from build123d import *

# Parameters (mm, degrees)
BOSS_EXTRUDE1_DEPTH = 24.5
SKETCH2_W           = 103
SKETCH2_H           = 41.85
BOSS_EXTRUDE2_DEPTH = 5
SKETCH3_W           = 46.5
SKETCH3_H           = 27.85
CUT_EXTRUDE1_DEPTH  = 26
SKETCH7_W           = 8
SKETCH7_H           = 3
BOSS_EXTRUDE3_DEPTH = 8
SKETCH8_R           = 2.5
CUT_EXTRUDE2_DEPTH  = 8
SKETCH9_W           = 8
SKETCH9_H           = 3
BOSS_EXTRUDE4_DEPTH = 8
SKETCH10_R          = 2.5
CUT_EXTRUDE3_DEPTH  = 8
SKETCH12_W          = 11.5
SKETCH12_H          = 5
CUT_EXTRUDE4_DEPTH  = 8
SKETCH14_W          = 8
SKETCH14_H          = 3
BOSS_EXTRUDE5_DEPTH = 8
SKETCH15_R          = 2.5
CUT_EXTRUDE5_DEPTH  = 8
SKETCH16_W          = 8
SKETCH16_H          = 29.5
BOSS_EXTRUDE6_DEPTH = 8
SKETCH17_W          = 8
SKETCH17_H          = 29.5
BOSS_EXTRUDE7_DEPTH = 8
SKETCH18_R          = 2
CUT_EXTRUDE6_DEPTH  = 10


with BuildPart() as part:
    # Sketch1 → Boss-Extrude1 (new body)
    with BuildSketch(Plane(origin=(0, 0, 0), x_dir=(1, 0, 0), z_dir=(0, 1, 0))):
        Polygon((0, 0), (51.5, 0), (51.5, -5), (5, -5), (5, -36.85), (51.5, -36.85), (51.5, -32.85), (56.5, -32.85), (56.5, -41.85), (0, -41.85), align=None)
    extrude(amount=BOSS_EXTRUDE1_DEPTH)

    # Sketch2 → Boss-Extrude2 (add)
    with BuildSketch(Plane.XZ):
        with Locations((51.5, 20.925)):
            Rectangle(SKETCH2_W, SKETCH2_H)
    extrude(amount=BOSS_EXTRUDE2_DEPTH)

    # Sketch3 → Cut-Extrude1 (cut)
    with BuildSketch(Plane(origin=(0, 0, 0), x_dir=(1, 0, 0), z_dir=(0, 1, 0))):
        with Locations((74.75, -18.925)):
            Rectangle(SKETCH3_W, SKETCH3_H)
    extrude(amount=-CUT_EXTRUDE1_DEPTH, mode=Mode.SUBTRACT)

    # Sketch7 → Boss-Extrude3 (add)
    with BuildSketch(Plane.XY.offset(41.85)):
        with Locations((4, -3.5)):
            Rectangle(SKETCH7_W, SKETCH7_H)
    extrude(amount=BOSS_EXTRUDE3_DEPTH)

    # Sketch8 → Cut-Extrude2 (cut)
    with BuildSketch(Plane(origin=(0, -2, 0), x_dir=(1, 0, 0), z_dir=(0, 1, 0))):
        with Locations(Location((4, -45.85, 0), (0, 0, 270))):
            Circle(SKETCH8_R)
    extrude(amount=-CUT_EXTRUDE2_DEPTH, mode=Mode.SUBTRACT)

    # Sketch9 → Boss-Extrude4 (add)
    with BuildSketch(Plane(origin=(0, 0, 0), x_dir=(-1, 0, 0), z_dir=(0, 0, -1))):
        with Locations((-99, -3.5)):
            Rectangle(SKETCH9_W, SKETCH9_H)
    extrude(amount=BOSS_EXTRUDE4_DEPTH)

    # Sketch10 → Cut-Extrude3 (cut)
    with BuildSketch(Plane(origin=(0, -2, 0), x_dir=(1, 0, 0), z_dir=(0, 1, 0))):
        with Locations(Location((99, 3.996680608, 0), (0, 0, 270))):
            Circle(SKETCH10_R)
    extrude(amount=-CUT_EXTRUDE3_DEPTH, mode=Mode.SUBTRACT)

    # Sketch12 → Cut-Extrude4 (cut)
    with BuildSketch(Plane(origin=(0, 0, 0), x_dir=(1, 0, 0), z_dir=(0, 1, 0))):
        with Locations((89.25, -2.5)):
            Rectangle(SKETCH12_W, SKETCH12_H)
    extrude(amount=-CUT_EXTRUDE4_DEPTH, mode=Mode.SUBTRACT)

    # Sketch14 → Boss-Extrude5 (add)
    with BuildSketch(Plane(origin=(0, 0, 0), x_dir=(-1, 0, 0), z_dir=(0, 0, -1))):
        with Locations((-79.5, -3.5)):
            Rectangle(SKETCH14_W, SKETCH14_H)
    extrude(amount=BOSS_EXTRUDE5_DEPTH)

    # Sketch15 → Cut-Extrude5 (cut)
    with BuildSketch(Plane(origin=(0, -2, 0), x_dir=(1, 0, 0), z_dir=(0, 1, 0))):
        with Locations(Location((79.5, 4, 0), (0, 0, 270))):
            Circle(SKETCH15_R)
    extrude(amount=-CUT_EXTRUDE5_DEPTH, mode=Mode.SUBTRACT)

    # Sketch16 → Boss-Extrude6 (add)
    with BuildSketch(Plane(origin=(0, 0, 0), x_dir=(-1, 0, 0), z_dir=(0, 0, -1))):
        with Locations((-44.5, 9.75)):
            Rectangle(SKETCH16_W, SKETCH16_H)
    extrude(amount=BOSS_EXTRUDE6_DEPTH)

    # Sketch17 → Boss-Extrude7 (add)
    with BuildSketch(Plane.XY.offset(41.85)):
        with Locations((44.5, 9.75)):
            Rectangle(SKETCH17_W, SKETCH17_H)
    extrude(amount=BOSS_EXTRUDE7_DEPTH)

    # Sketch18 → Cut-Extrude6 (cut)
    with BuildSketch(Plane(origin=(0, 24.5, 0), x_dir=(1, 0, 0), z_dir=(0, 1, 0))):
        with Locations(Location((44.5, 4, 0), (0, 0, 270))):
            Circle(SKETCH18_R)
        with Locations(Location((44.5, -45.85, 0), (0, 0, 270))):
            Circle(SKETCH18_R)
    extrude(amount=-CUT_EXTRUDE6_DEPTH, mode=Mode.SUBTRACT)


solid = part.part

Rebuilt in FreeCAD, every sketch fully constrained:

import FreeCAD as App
import Part
import Sketcher

V = App.Vector

doc = App.newDocument("Part")
body = doc.addObject("PartDesign::Body", "Body")

sketch1 = doc.addObject("Sketcher::SketchObject", "Sketch")
body.addObject(sketch1)
sketch1.AttachmentSupport = (doc.XZ_Plane, [""])
sketch1.MapMode = "FlatFace"
sketch1.addGeometry(Part.LineSegment(V(51.5, 0, 0), V(0, 0, 0)), False)
sketch1.addGeometry(Part.LineSegment(V(0, 0, 0), V(0, 41.85, 0)), False)
sketch1.addGeometry(Part.LineSegment(V(0, 41.85, 0), V(56.5, 41.85, 0)), False)
sketch1.addGeometry(Part.LineSegment(V(56.5, 41.85, 0), V(56.5, 32.85, 0)), False)
sketch1.addGeometry(Part.LineSegment(V(56.5, 32.85, 0), V(51.5, 32.85, 0)), False)
sketch1.addGeometry(Part.LineSegment(V(51.5, 32.85, 0), V(51.5, 36.85, 0)), False)
sketch1.addGeometry(Part.LineSegment(V(51.5, 36.85, 0), V(5, 36.85, 0)), False)
sketch1.addGeometry(Part.LineSegment(V(5, 36.85, 0), V(5, 5, 0)), False)
sketch1.addGeometry(Part.LineSegment(V(5, 5, 0), V(51.5, 5, 0)), False)
sketch1.addGeometry(Part.LineSegment(V(51.5, 5, 0), V(51.5, 0, 0)), False)
sketch1.addConstraint(Sketcher.Constraint("Coincident", 0, 2, 1, 1))
sketch1.addConstraint(Sketcher.Constraint("Coincident", 1, 2, 2, 1))
sketch1.addConstraint(Sketcher.Constraint("Coincident", 2, 2, 3, 1))
sketch1.addConstraint(Sketcher.Constraint("Coincident", 3, 2, 4, 1))
sketch1.addConstraint(Sketcher.Constraint("Coincident", 4, 2, 5, 1))
sketch1.addConstraint(Sketcher.Constraint("Coincident", 5, 2, 6, 1))
sketch1.addConstraint(Sketcher.Constraint("Coincident", 6, 2, 7, 1))
sketch1.addConstraint(Sketcher.Constraint("Coincident", 7, 2, 8, 1))
sketch1.addConstraint(Sketcher.Constraint("Coincident", 8, 2, 9, 1))
sketch1.addConstraint(Sketcher.Constraint("Coincident", 9, 2, 0, 1))
sketch1.addConstraint(Sketcher.Constraint("Horizontal", 0))
sketch1.addConstraint(Sketcher.Constraint("Vertical", 1))
sketch1.addConstraint(Sketcher.Constraint("Horizontal", 2))
sketch1.addConstraint(Sketcher.Constraint("Vertical", 3))
sketch1.addConstraint(Sketcher.Constraint("Horizontal", 4))
sketch1.addConstraint(Sketcher.Constraint("Vertical", 5))
sketch1.addConstraint(Sketcher.Constraint("Horizontal", 6))
sketch1.addConstraint(Sketcher.Constraint("Vertical", 7))
sketch1.addConstraint(Sketcher.Constraint("Horizontal", 8))
sketch1.addConstraint(Sketcher.Constraint("Vertical", 9))
sketch1.addConstraint(Sketcher.Constraint("Coincident", 0, 2, -1, 1))
sketch1.addConstraint(Sketcher.Constraint("Vertical", 5, 2, 8, 2))
sketch1.addConstraint(Sketcher.Constraint("Equal", 4, 9))
sketch1.addConstraint(Sketcher.Constraint("DistanceX", 4, 2, 4, 1, 5.0))
sketch1.addConstraint(Sketcher.Constraint("DistanceY", 3, 2, 3, 1, 9.0))
sketch1.addConstraint(Sketcher.Constraint("DistanceY", 5, 1, 5, 2, 4.0))
sketch1.addConstraint(Sketcher.Constraint("DistanceX", 0, 2, 0, 1, 51.5))
sketch1.addConstraint(Sketcher.Constraint("DistanceX", 6, 2, 6, 1, 46.5))
sketch1.addConstraint(Sketcher.Constraint("DistanceY", 1, 1, 1, 2, 41.85))
pad1 = doc.addObject("PartDesign::Pad", "Pad")
body.addObject(pad1)
pad1.Profile = sketch1
pad1.Length = 24.5
pad1.Reversed = True

sketch2 = doc.addObject("Sketcher::SketchObject", "Sketch001")
body.addObject(sketch2)
sketch2.AttachmentSupport = (doc.XZ_Plane, [""])
sketch2.MapMode = "FlatFace"
sketch2.addGeometry(Part.LineSegment(V(0, 41.85, 0), V(0, 0, 0)), False)
sketch2.addGeometry(Part.LineSegment(V(0, 0, 0), V(103, 0, 0)), False)
sketch2.addGeometry(Part.LineSegment(V(103, 0, 0), V(103, 41.85, 0)), False)
sketch2.addGeometry(Part.LineSegment(V(103, 41.85, 0), V(0, 41.85, 0)), False)
sketch2.addConstraint(Sketcher.Constraint("Coincident", 0, 2, 1, 1))
sketch2.addConstraint(Sketcher.Constraint("Coincident", 1, 2, 2, 1))
sketch2.addConstraint(Sketcher.Constraint("Coincident", 2, 2, 3, 1))
sketch2.addConstraint(Sketcher.Constraint("Coincident", 3, 2, 0, 1))
sketch2.addConstraint(Sketcher.Constraint("Vertical", 0))
sketch2.addConstraint(Sketcher.Constraint("Horizontal", 1))
sketch2.addConstraint(Sketcher.Constraint("Vertical", 2))
sketch2.addConstraint(Sketcher.Constraint("Horizontal", 3))
sketch2.addConstraint(Sketcher.Constraint("Coincident", 0, 2, -1, 1))
sketch2.addConstraint(Sketcher.Constraint("DistanceX", 1, 1, 1, 2, 103.0))
sketch2.addConstraint(Sketcher.Constraint("DistanceY", 0, 2, 0, 1, 41.85))
pad2 = doc.addObject("PartDesign::Pad", "Pad001")
body.addObject(pad2)
pad2.Profile = sketch2
pad2.Length = 5

sketch3 = doc.addObject("Sketcher::SketchObject", "Sketch002")
body.addObject(sketch3)
sketch3.AttachmentSupport = (doc.XZ_Plane, [""])
sketch3.MapMode = "FlatFace"
sketch3.addGeometry(Part.LineSegment(V(51.5, 5, 0), V(51.5, 32.85, 0)), False)
sketch3.addGeometry(Part.LineSegment(V(51.5, 32.85, 0), V(98, 32.85, 0)), False)
sketch3.addGeometry(Part.LineSegment(V(98, 32.85, 0), V(98, 5, 0)), False)
sketch3.addGeometry(Part.LineSegment(V(98, 5, 0), V(51.5, 5, 0)), False)
sketch3.addConstraint(Sketcher.Constraint("Coincident", 0, 2, 1, 1))
sketch3.addConstraint(Sketcher.Constraint("Coincident", 1, 2, 2, 1))
sketch3.addConstraint(Sketcher.Constraint("Coincident", 2, 2, 3, 1))
sketch3.addConstraint(Sketcher.Constraint("Coincident", 3, 2, 0, 1))
sketch3.addConstraint(Sketcher.Constraint("Vertical", 0))
sketch3.addConstraint(Sketcher.Constraint("Horizontal", 1))
sketch3.addConstraint(Sketcher.Constraint("Vertical", 2))
sketch3.addConstraint(Sketcher.Constraint("Horizontal", 3))
sketch3.addConstraint(Sketcher.Constraint("DistanceX", 1, 1, 1, 2, 46.5))
sketch3.addConstraint(Sketcher.Constraint("DistanceX", -1, 1, 1, 2, 98.0))
sketch3.addConstraint(Sketcher.Constraint("DistanceY", -1, 1, 2, 2, 5.0))
sketch3.addConstraint(Sketcher.Constraint("DistanceY", 0, 1, 0, 2, 27.85))
pocket1 = doc.addObject("PartDesign::Pocket", "Pocket")
body.addObject(pocket1)
pocket1.Profile = sketch3
pocket1.Length = 26
pocket1.Reversed = True

sketch4 = doc.addObject("Sketcher::SketchObject", "Sketch003")
body.addObject(sketch4)
sketch4.AttachmentSupport = (doc.XY_Plane, [""])
sketch4.MapMode = "FlatFace"
sketch4.AttachmentOffset = App.Placement(V(0, 0, 41.85), App.Rotation())
sketch4.addGeometry(Part.LineSegment(V(0, -2, 0), V(0, -5, 0)), False)
sketch4.addGeometry(Part.LineSegment(V(0, -5, 0), V(8, -5, 0)), False)
sketch4.addGeometry(Part.LineSegment(V(8, -5, 0), V(8, -2, 0)), False)
sketch4.addGeometry(Part.LineSegment(V(8, -2, 0), V(0, -2, 0)), False)
sketch4.addConstraint(Sketcher.Constraint("Coincident", 0, 2, 1, 1))
sketch4.addConstraint(Sketcher.Constraint("Coincident", 1, 2, 2, 1))
sketch4.addConstraint(Sketcher.Constraint("Coincident", 2, 2, 3, 1))
sketch4.addConstraint(Sketcher.Constraint("Coincident", 3, 2, 0, 1))
sketch4.addConstraint(Sketcher.Constraint("Vertical", 0))
sketch4.addConstraint(Sketcher.Constraint("Horizontal", 1))
sketch4.addConstraint(Sketcher.Constraint("Vertical", 2))
sketch4.addConstraint(Sketcher.Constraint("Horizontal", 3))
sketch4.addConstraint(Sketcher.Constraint("PointOnObject", 0, 2, -2))
sketch4.addConstraint(Sketcher.Constraint("DistanceX", 1, 1, 1, 2, 8.0))
sketch4.addConstraint(Sketcher.Constraint("DistanceY", 0, 2, 0, 1, 3.0))
sketch4.addConstraint(Sketcher.Constraint("DistanceY", 0, 2, -1, 1, 5.0))
pad3 = doc.addObject("PartDesign::Pad", "Pad002")
body.addObject(pad3)
pad3.Profile = sketch4
pad3.Length = 8

sketch5 = doc.addObject("Sketcher::SketchObject", "Sketch004")
body.addObject(sketch5)
sketch5.AttachmentSupport = (doc.XZ_Plane, [""])
sketch5.MapMode = "FlatFace"
sketch5.AttachmentOffset = App.Placement(V(0, 0, 2), App.Rotation())
sketch5.addGeometry(Part.Circle(V(4, 45.85, 0), V(0, 0, 1), 2.5), False)
sketch5.addConstraint(Sketcher.Constraint("Diameter", 0, 5.0))
sketch5.addConstraint(Sketcher.Constraint("DistanceX", -1, 1, 0, 3, 4.0))
sketch5.addConstraint(Sketcher.Constraint("DistanceY", -1, 1, 0, 3, 45.85))
pocket2 = doc.addObject("PartDesign::Pocket", "Pocket001")
body.addObject(pocket2)
pocket2.Profile = sketch5
pocket2.Length = 8
pocket2.Reversed = True

sketch6 = doc.addObject("Sketcher::SketchObject", "Sketch005")
body.addObject(sketch6)
sketch6.AttachmentSupport = (doc.XY_Plane, [""])
sketch6.MapMode = "FlatFace"
sketch6.addGeometry(Part.LineSegment(V(103, -2, 0), V(103, -5, 0)), False)
sketch6.addGeometry(Part.LineSegment(V(103, -5, 0), V(95, -5, 0)), False)
sketch6.addGeometry(Part.LineSegment(V(95, -5, 0), V(95, -2, 0)), False)
sketch6.addGeometry(Part.LineSegment(V(95, -2, 0), V(103, -2, 0)), False)
sketch6.addConstraint(Sketcher.Constraint("Coincident", 0, 2, 1, 1))
sketch6.addConstraint(Sketcher.Constraint("Coincident", 1, 2, 2, 1))
sketch6.addConstraint(Sketcher.Constraint("Coincident", 2, 2, 3, 1))
sketch6.addConstraint(Sketcher.Constraint("Coincident", 3, 2, 0, 1))
sketch6.addConstraint(Sketcher.Constraint("Vertical", 0))
sketch6.addConstraint(Sketcher.Constraint("Horizontal", 1))
sketch6.addConstraint(Sketcher.Constraint("Vertical", 2))
sketch6.addConstraint(Sketcher.Constraint("Horizontal", 3))
sketch6.addConstraint(Sketcher.Constraint("DistanceX", 1, 2, 1, 1, 8.0))
sketch6.addConstraint(Sketcher.Constraint("DistanceY", 0, 2, 0, 1, 3.0))
sketch6.addConstraint(Sketcher.Constraint("DistanceX", -1, 1, 0, 2, 103.0))
sketch6.addConstraint(Sketcher.Constraint("DistanceY", 0, 2, -1, 1, 5.0))
pad4 = doc.addObject("PartDesign::Pad", "Pad003")
body.addObject(pad4)
pad4.Profile = sketch6
pad4.Length = 8
pad4.Reversed = True

sketch7 = doc.addObject("Sketcher::SketchObject", "Sketch006")
body.addObject(sketch7)
sketch7.AttachmentSupport = (doc.XZ_Plane, [""])
sketch7.MapMode = "FlatFace"
sketch7.AttachmentOffset = App.Placement(V(0, 0, 2), App.Rotation())
sketch7.addGeometry(Part.Circle(V(99, -3.996681, 0), V(0, 0, 1), 2.5), False)
sketch7.addConstraint(Sketcher.Constraint("Diameter", 0, 5.0))
sketch7.addConstraint(Sketcher.Constraint("DistanceX", -1, 1, 0, 3, 99.0))
sketch7.addConstraint(Sketcher.Constraint("DistanceY", 0, 3, -1, 1, 3.996681))
pocket3 = doc.addObject("PartDesign::Pocket", "Pocket002")
body.addObject(pocket3)
pocket3.Profile = sketch7
pocket3.Length = 8
pocket3.Reversed = True

sketch8 = doc.addObject("Sketcher::SketchObject", "Sketch007")
body.addObject(sketch8)
sketch8.AttachmentSupport = (doc.XZ_Plane, [""])
sketch8.MapMode = "FlatFace"
sketch8.addGeometry(Part.LineSegment(V(83.5, 0, 0), V(83.5, 5, 0)), False)
sketch8.addGeometry(Part.LineSegment(V(83.5, 5, 0), V(95, 5, 0)), False)
sketch8.addGeometry(Part.LineSegment(V(95, 5, 0), V(95, 0, 0)), False)
sketch8.addGeometry(Part.LineSegment(V(95, 0, 0), V(83.5, 0, 0)), False)
sketch8.addConstraint(Sketcher.Constraint("Coincident", 0, 2, 1, 1))
sketch8.addConstraint(Sketcher.Constraint("Coincident", 1, 2, 2, 1))
sketch8.addConstraint(Sketcher.Constraint("Coincident", 2, 2, 3, 1))
sketch8.addConstraint(Sketcher.Constraint("Coincident", 3, 2, 0, 1))
sketch8.addConstraint(Sketcher.Constraint("Vertical", 0))
sketch8.addConstraint(Sketcher.Constraint("Horizontal", 1))
sketch8.addConstraint(Sketcher.Constraint("Vertical", 2))
sketch8.addConstraint(Sketcher.Constraint("Horizontal", 3))
sketch8.addConstraint(Sketcher.Constraint("PointOnObject", 2, 2, -1))
sketch8.addConstraint(Sketcher.Constraint("DistanceY", 0, 1, 0, 2, 5.0))
sketch8.addConstraint(Sketcher.Constraint("DistanceX", 1, 1, 1, 2, 11.5))
sketch8.addConstraint(Sketcher.Constraint("DistanceX", -1, 1, 1, 2, 95.0))
pocket4 = doc.addObject("PartDesign::Pocket", "Pocket003")
body.addObject(pocket4)
pocket4.Profile = sketch8
pocket4.Length = 8
pocket4.Reversed = True

sketch9 = doc.addObject("Sketcher::SketchObject", "Sketch008")
body.addObject(sketch9)
sketch9.AttachmentSupport = (doc.XY_Plane, [""])
sketch9.MapMode = "FlatFace"
sketch9.addGeometry(Part.LineSegment(V(83.5, -2, 0), V(83.5, -5, 0)), False)
sketch9.addGeometry(Part.LineSegment(V(83.5, -5, 0), V(75.5, -5, 0)), False)
sketch9.addGeometry(Part.LineSegment(V(75.5, -5, 0), V(75.5, -2, 0)), False)
sketch9.addGeometry(Part.LineSegment(V(75.5, -2, 0), V(83.5, -2, 0)), False)
sketch9.addConstraint(Sketcher.Constraint("Coincident", 0, 2, 1, 1))
sketch9.addConstraint(Sketcher.Constraint("Coincident", 1, 2, 2, 1))
sketch9.addConstraint(Sketcher.Constraint("Coincident", 2, 2, 3, 1))
sketch9.addConstraint(Sketcher.Constraint("Coincident", 3, 2, 0, 1))
sketch9.addConstraint(Sketcher.Constraint("Vertical", 0))
sketch9.addConstraint(Sketcher.Constraint("Horizontal", 1))
sketch9.addConstraint(Sketcher.Constraint("Vertical", 2))
sketch9.addConstraint(Sketcher.Constraint("Horizontal", 3))
sketch9.addConstraint(Sketcher.Constraint("DistanceX", 1, 2, 1, 1, 8.0))
sketch9.addConstraint(Sketcher.Constraint("DistanceY", 0, 2, 0, 1, 3.0))
sketch9.addConstraint(Sketcher.Constraint("DistanceY", 0, 2, -1, 1, 5.0))
sketch9.addConstraint(Sketcher.Constraint("DistanceX", -1, 1, 0, 2, 83.5))
pad5 = doc.addObject("PartDesign::Pad", "Pad004")
body.addObject(pad5)
pad5.Profile = sketch9
pad5.Length = 8
pad5.Reversed = True

sketch10 = doc.addObject("Sketcher::SketchObject", "Sketch009")
body.addObject(sketch10)
sketch10.AttachmentSupport = (doc.XZ_Plane, [""])
sketch10.MapMode = "FlatFace"
sketch10.AttachmentOffset = App.Placement(V(0, 0, 2), App.Rotation())
sketch10.addGeometry(Part.Circle(V(79.5, -4, 0), V(0, 0, 1), 2.5), False)
sketch10.addConstraint(Sketcher.Constraint("Diameter", 0, 5.0))
sketch10.addConstraint(Sketcher.Constraint("DistanceY", 0, 3, -1, 1, 4.0))
sketch10.addConstraint(Sketcher.Constraint("DistanceX", -1, 1, 0, 3, 79.5))
pocket5 = doc.addObject("PartDesign::Pocket", "Pocket004")
body.addObject(pocket5)
pocket5.Profile = sketch10
pocket5.Length = 8
pocket5.Reversed = True

sketch11 = doc.addObject("Sketcher::SketchObject", "Sketch010")
body.addObject(sketch11)
sketch11.AttachmentSupport = (doc.XY_Plane, [""])
sketch11.MapMode = "FlatFace"
sketch11.addGeometry(Part.LineSegment(V(48.5, 24.5, 0), V(48.5, -5, 0)), False)
sketch11.addGeometry(Part.LineSegment(V(48.5, -5, 0), V(40.5, -5, 0)), False)
sketch11.addGeometry(Part.LineSegment(V(40.5, -5, 0), V(40.5, 24.5, 0)), False)
sketch11.addGeometry(Part.LineSegment(V(40.5, 24.5, 0), V(48.5, 24.5, 0)), False)
sketch11.addConstraint(Sketcher.Constraint("Coincident", 0, 2, 1, 1))
sketch11.addConstraint(Sketcher.Constraint("Coincident", 1, 2, 2, 1))
sketch11.addConstraint(Sketcher.Constraint("Coincident", 2, 2, 3, 1))
sketch11.addConstraint(Sketcher.Constraint("Coincident", 3, 2, 0, 1))
sketch11.addConstraint(Sketcher.Constraint("Vertical", 0))
sketch11.addConstraint(Sketcher.Constraint("Horizontal", 1))
sketch11.addConstraint(Sketcher.Constraint("Vertical", 2))
sketch11.addConstraint(Sketcher.Constraint("Horizontal", 3))
sketch11.addConstraint(Sketcher.Constraint("DistanceX", 1, 2, 1, 1, 8.0))
sketch11.addConstraint(Sketcher.Constraint("DistanceY", 0, 2, 0, 1, 29.5))
sketch11.addConstraint(Sketcher.Constraint("DistanceY", 0, 2, -1, 1, 5.0))
sketch11.addConstraint(Sketcher.Constraint("DistanceX", -1, 1, 0, 2, 48.5))
pad6 = doc.addObject("PartDesign::Pad", "Pad005")
body.addObject(pad6)
pad6.Profile = sketch11
pad6.Length = 8
pad6.Reversed = True

sketch12 = doc.addObject("Sketcher::SketchObject", "Sketch011")
body.addObject(sketch12)
sketch12.AttachmentSupport = (doc.XY_Plane, [""])
sketch12.MapMode = "FlatFace"
sketch12.AttachmentOffset = App.Placement(V(0, 0, 41.85), App.Rotation())
sketch12.addGeometry(Part.LineSegment(V(40.5, 24.5, 0), V(40.5, -5, 0)), False)
sketch12.addGeometry(Part.LineSegment(V(40.5, -5, 0), V(48.5, -5, 0)), False)
sketch12.addGeometry(Part.LineSegment(V(48.5, -5, 0), V(48.5, 24.5, 0)), False)
sketch12.addGeometry(Part.LineSegment(V(48.5, 24.5, 0), V(40.5, 24.5, 0)), False)
sketch12.addConstraint(Sketcher.Constraint("Coincident", 0, 2, 1, 1))
sketch12.addConstraint(Sketcher.Constraint("Coincident", 1, 2, 2, 1))
sketch12.addConstraint(Sketcher.Constraint("Coincident", 2, 2, 3, 1))
sketch12.addConstraint(Sketcher.Constraint("Coincident", 3, 2, 0, 1))
sketch12.addConstraint(Sketcher.Constraint("Vertical", 0))
sketch12.addConstraint(Sketcher.Constraint("Horizontal", 1))
sketch12.addConstraint(Sketcher.Constraint("Vertical", 2))
sketch12.addConstraint(Sketcher.Constraint("Horizontal", 3))
sketch12.addConstraint(Sketcher.Constraint("DistanceX", 1, 1, 1, 2, 8.0))
sketch12.addConstraint(Sketcher.Constraint("DistanceY", 0, 2, 0, 1, 29.5))
sketch12.addConstraint(Sketcher.Constraint("DistanceY", 0, 2, -1, 1, 5.0))
sketch12.addConstraint(Sketcher.Constraint("DistanceX", -1, 1, 0, 2, 40.5))
pad7 = doc.addObject("PartDesign::Pad", "Pad006")
body.addObject(pad7)
pad7.Profile = sketch12
pad7.Length = 8

sketch13 = doc.addObject("Sketcher::SketchObject", "Sketch012")
body.addObject(sketch13)
sketch13.AttachmentSupport = (doc.XZ_Plane, [""])
sketch13.MapMode = "FlatFace"
sketch13.AttachmentOffset = App.Placement(V(0, 0, -24.5), App.Rotation())
sketch13.addGeometry(Part.Circle(V(44.5, -4, 0), V(0, 0, 1), 2), False)
sketch13.addGeometry(Part.Circle(V(44.5, 45.85, 0), V(0, 0, 1), 2), False)
sketch13.addConstraint(Sketcher.Constraint("Equal", 0, 1))
sketch13.addConstraint(Sketcher.Constraint("Vertical", 0, 3, 1, 3))
sketch13.addConstraint(Sketcher.Constraint("Diameter", 0, 4.0))
sketch13.addConstraint(Sketcher.Constraint("DistanceY", 0, 3, -1, 1, 4.0))
sketch13.addConstraint(Sketcher.Constraint("DistanceX", -1, 1, 0, 3, 44.5))
sketch13.addConstraint(Sketcher.Constraint("DistanceY", -1, 1, 1, 3, 45.85))
pocket6 = doc.addObject("PartDesign::Pocket", "Pocket005")
body.addObject(pocket6)
pocket6.Profile = sketch13
pocket6.Length = 10
pocket6.Reversed = True

doc.recompute()
